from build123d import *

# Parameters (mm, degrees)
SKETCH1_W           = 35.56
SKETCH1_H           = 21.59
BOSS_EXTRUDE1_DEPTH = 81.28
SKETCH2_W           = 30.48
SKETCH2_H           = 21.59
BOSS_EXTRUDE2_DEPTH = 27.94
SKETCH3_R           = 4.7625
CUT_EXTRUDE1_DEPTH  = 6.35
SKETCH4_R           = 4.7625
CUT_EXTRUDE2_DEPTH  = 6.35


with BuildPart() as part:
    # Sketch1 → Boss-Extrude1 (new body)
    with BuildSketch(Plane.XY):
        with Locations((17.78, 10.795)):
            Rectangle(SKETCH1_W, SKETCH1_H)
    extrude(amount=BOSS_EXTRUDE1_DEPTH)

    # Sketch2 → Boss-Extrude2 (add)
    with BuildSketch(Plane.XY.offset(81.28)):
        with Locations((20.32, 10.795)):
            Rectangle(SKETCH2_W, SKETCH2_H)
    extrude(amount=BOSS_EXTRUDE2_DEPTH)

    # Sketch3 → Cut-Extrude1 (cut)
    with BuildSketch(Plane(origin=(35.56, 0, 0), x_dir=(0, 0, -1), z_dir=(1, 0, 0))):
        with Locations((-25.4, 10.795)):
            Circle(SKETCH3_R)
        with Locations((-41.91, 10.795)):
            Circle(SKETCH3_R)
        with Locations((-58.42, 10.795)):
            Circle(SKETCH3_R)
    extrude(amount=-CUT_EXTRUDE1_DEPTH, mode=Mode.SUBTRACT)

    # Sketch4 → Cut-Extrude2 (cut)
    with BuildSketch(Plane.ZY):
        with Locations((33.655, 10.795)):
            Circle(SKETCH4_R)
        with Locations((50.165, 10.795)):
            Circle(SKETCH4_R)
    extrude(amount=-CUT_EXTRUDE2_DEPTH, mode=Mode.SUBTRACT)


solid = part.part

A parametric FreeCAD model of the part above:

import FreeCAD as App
import Part
import Sketcher
Q = App.Units.Quantity

doc = App.newDocument("Part")
body = doc.addObject("PartDesign::Body", "Body")

sketch1 = body.newObject("Sketcher::SketchObject", "Sketch")
sketch1.AttachmentSupport = (doc.getObject("XY_Plane"), [""])
sketch1.MapMode = "FlatFace"
sketch1.addGeometry([
    Part.LineSegment(App.Vector(0, 21.59, 0), App.Vector(0, 0, 0)),
    Part.LineSegment(App.Vector(0, 0, 0), App.Vector(35.56, 0, 0)),
    Part.LineSegment(App.Vector(35.56, 0, 0), App.Vector(35.56, 21.59, 0)),
    Part.LineSegment(App.Vector(35.56, 21.59, 0), App.Vector(0, 21.59, 0)),
], False)
sketch1.addConstraint([
    Sketcher.Constraint("Coincident", 0, 2, 1, 1),
    Sketcher.Constraint("Coincident", 1, 2, 2, 1),
    Sketcher.Constraint("Coincident", 2, 2, 3, 1),
    Sketcher.Constraint("Coincident", 3, 2, 0, 1),
    Sketcher.Constraint("Vertical", 0),
    Sketcher.Constraint("Horizontal", 1),
    Sketcher.Constraint("Vertical", 2),
    Sketcher.Constraint("Horizontal", 3),
    Sketcher.Constraint("Coincident", 0, 2, -1, 1),
    Sketcher.Constraint("DistanceX", 1, 1, 1, 2, Q("1.4 in")),
    Sketcher.Constraint("DistanceY", 0, 2, 0, 1, Q("0.85 in")),
])
pad1 = body.newObject("PartDesign::Pad", "Pad")
pad1.Profile = sketch1
pad1.Length = Q("3.2 in")

sketch2 = body.newObject("Sketcher::SketchObject", "Sketch001")
sketch2.AttachmentSupport = (doc.getObject("XY_Plane"), [""])
sketch2.MapMode = "FlatFace"
sketch2.AttachmentOffset = App.Placement(App.Vector(0, 0, 3.2 * 25.4), App.Rotation())
sketch2.addGeometry([
    Part.LineSegment(App.Vector(5.08, 21.59, 0), App.Vector(5.08, 0, 0)),
    Part.LineSegment(App.Vector(5.08, 0, 0), App.Vector(35.56, 0, 0)),
    Part.LineSegment(App.Vector(35.56, 0, 0), App.Vector(35.56, 21.59, 0)),
    Part.LineSegment(App.Vector(35.56, 21.59, 0), App.Vector(5.08, 21.59, 0)),
], False)
sketch2.addConstraint([
    Sketcher.Constraint("Coincident", 0, 2, 1, 1),
    Sketcher.Constraint("Coincident", 1, 2, 2, 1),
    Sketcher.Constraint("Coincident", 2, 2, 3, 1),
    Sketcher.Constraint("Coincident", 3, 2, 0, 1),
    Sketcher.Constraint("Vertical", 0),
    Sketcher.Constraint("Horizontal", 1),
    Sketcher.Constraint("Vertical", 2),
    Sketcher.Constraint("Horizontal", 3),
    Sketcher.Constraint("PointOnObject", 0, 2, -1),
    Sketcher.Constraint("DistanceX", 1, 1, 1, 2, Q("1.2 in")),
    Sketcher.Constraint("DistanceY", 0, 2, 0, 1, Q("0.85 in")),
    Sketcher.Constraint("DistanceX", -1, 1, 0, 2, Q("0.2 in")),
])
pad2 = body.newObject("PartDesign::Pad", "Pad001")
pad2.Profile = sketch2
pad2.Length = Q("1.1 in")

sketch3 = body.newObject("Sketcher::SketchObject", "Sketch002")
sketch3.AttachmentSupport = (doc.getObject("YZ_Plane"), [""])
sketch3.MapMode = "FlatFace"
sketch3.AttachmentOffset = App.Placement(App.Vector(0, 0, 1.4 * 25.4), App.Rotation())
sketch3.addGeometry([
    Part.Circle(App.Vector(10.795, 25.4, 0), App.Vector(0, 0, 1), 4.7625),
    Part.Circle(App.Vector(10.795, 41.91, 0), App.Vector(0, 0, 1), 4.7625),
    Part.Circle(App.Vector(10.795, 58.42, 0), App.Vector(0, 0, 1), 4.7625),
], False)
sketch3.addConstraint([
    Sketcher.Constraint("Equal", 0, 1),
    Sketcher.Constraint("Equal", 1, 2),
    Sketcher.Constraint("Vertical", 0, 3, 1, 3),
    Sketcher.Constraint("Vertical", 1, 3, 2, 3),
    Sketcher.Constraint("Diameter", 0, Q("0.375 in")),
    Sketcher.Constraint("DistanceY", -1, 1, 0, 3, Q("1 in")),
    Sketcher.Constraint("DistanceY", -1, 1, 2, 3, Q("2.3 in")),
    Sketcher.Constraint("DistanceY", -1, 1, 1, 3, Q("1.65 in")),
    Sketcher.Constraint("DistanceX", -1, 1, 0, 3, Q("0.425 in")),
])
pocket1 = body.newObject("PartDesign::Pocket", "Pocket")
pocket1.Profile = sketch3
pocket1.Length = Q("0.25 in")

sketch4 = body.newObject("Sketcher::SketchObject", "Sketch003")
sketch4.AttachmentSupport = (doc.getObject("YZ_Plane"), [""])
sketch4.MapMode = "FlatFace"
sketch4.addGeometry([
    Part.Circle(App.Vector(10.795, 33.655, 0), App.Vector(0, 0, 1), 4.7625),
    Part.Circle(App.Vector(10.795, 50.165, 0), App.Vector(0, 0, 1), 4.7625),
], False)
sketch4.addConstraint([
    Sketcher.Constraint("Equal", 0, 1),
    Sketcher.Constraint("Vertical", 0, 3, 1, 3),
    Sketcher.Constraint("Diameter", 0, Q("0.375 in")),
    Sketcher.Constraint("DistanceY", 0, 3, 1, 3, Q("0.65 in")),
    Sketcher.Constraint("DistanceX", -1, 1, 0, 3, Q("0.425 in")),
    Sketcher.Constraint("DistanceY", -1, 1, 0, 3, Q("1.325 in")),
])
pocket2 = body.newObject("PartDesign::Pocket", "Pocket001")
pocket2.Profile = sketch4
pocket2.Length = Q("0.25 in")
pocket2.Reversed = True

doc.recompute()
